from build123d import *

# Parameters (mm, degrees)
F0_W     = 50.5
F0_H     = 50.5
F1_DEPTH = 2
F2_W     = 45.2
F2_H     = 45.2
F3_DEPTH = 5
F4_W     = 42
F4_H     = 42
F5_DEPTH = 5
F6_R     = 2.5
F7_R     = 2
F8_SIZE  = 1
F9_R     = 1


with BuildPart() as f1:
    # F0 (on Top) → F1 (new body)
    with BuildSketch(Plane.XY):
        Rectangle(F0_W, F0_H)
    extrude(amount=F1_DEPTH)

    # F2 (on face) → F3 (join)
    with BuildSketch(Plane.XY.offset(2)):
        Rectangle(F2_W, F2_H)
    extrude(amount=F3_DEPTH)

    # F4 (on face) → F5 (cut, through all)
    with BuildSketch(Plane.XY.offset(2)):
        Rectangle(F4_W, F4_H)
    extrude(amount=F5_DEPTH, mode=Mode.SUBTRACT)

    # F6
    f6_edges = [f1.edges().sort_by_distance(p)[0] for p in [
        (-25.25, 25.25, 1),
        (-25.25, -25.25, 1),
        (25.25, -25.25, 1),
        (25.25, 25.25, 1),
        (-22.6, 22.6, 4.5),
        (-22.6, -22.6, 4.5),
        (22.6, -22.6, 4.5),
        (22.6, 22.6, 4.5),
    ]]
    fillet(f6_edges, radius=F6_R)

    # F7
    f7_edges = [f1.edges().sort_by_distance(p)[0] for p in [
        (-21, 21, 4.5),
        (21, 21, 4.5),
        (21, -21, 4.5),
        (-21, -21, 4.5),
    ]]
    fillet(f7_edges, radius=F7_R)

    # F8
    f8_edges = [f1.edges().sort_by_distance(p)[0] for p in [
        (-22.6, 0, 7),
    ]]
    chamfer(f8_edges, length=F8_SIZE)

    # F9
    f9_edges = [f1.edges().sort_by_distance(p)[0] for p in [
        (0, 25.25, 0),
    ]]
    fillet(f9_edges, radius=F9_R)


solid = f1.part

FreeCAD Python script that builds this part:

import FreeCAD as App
import Part
import Sketcher

V = App.Vector


def edges_at(feature, points):
    """Names of the edges that pass closest to the given points."""
    edges = feature.Shape.Edges
    near = lambda p: min(range(len(edges)), key=lambda i: edges[i].distToShape(Part.Vertex(*p))[0])
    return sorted({f"Edge{near(p) + 1}" for p in points})

doc = App.newDocument("Part")
params = doc.addObject("Spreadsheet::Sheet", "Params")
for row, (alias, value) in enumerate([
    ("sketch1_width", "50.5 mm"),
    ("pad1_length", "2 mm"),
    ("sketch2_width", "45.2 mm"),
    ("pad2_length", "5 mm"),
    ("sketch3_width", "42 mm"),
    ("fillet_radius", "2.5 mm"),
    ("fillet2_radius", "2 mm"),
    ("chamfer_size", "1 mm"),
    ("fillet3_radius", "1 mm"),
], start=1):
    params.set(f"A{row}", alias)
    params.set(f"B{row}", "=" + value)
    params.setAlias(f"B{row}", alias)

body = doc.addObject("PartDesign::Body", "Body")

# Sketch on XY plane
sketch1 = body.newObject("Sketcher::SketchObject", "Sketch")
sketch1.AttachmentSupport = (doc.getObject("XY_Plane"), [""])
sketch1.MapMode = "FlatFace"
sketch1.addGeometry([
    Part.LineSegment(V(-25.25, 25.25, 0), V(-25.25, -25.25, 0)),
    Part.LineSegment(V(-25.25, -25.25, 0), V(25.25, -25.25, 0)),
    Part.LineSegment(V(25.25, -25.25, 0), V(25.25, 25.25, 0)),
    Part.LineSegment(V(25.25, 25.25, 0), V(-25.25, 25.25, 0)),
], False)
sketch1.addConstraint([
    Sketcher.Constraint("Coincident", 0, 2, 1, 1),
    Sketcher.Constraint("Coincident", 1, 2, 2, 1),
    Sketcher.Constraint("Coincident", 2, 2, 3, 1),
    Sketcher.Constraint("Coincident", 3, 2, 0, 1),
    Sketcher.Constraint("Vertical", 0),
    Sketcher.Constraint("Horizontal", 1),
    Sketcher.Constraint("Vertical", 2),
    Sketcher.Constraint("Horizontal", 3),
    Sketcher.Constraint("Symmetric", 0, 2, 2, 2, -1, 1),
    Sketcher.Constraint("Equal", 3, 0),
    Sketcher.Constraint("DistanceX", 1, 1, 1, 2, 50.5),
])
sketch1.setExpression("Constraints[10]", "Params.sketch1_width")
pad1 = body.newObject("PartDesign::Pad", "Pad")
pad1.Profile = sketch1
pad1.setExpression("Length", "Params.pad1_length")

# Sketch on XY plane
sketch2 = body.newObject("Sketcher::SketchObject", "Sketch001")
sketch2.AttachmentSupport = (doc.getObject("XY_Plane"), [""])
sketch2.MapMode = "FlatFace"
sketch2.AttachmentOffset = App.Placement(V(0, 0, 2), App.Rotation())
sketch2.addGeometry([
    Part.LineSegment(V(-22.6, 22.6, 0), V(-22.6, -22.6, 0)),
    Part.LineSegment(V(-22.6, -22.6, 0), V(22.6, -22.6, 0)),
    Part.LineSegment(V(22.6, -22.6, 0), V(22.6, 22.6, 0)),
    Part.LineSegment(V(22.6, 22.6, 0), V(-22.6, 22.6, 0)),
], False)
sketch2.addConstraint([
    Sketcher.Constraint("Coincident", 0, 2, 1, 1),
    Sketcher.Constraint("Coincident", 1, 2, 2, 1),
    Sketcher.Constraint("Coincident", 2, 2, 3, 1),
    Sketcher.Constraint("Coincident", 3, 2, 0, 1),
    Sketcher.Constraint("Vertical", 0),
    Sketcher.Constraint("Horizontal", 1),
    Sketcher.Constraint("Vertical", 2),
    Sketcher.Constraint("Horizontal", 3),
    Sketcher.Constraint("Symmetric", 0, 2, 2, 2, -1, 1),
    Sketcher.Constraint("Equal", 3, 0),
    Sketcher.Constraint("DistanceX", 1, 1, 1, 2, 45.2),
])
sketch2.setExpression("Constraints[10]", "Params.sketch2_width")
pad2 = body.newObject("PartDesign::Pad", "Pad001")
pad2.Profile = sketch2
pad2.setExpression("Length", "Params.pad2_length")

# Sketch on XY plane
sketch3 = body.newObject("Sketcher::SketchObject", "Sketch002")
sketch3.AttachmentSupport = (doc.getObject("XY_Plane"), [""])
sketch3.MapMode = "FlatFace"
sketch3.AttachmentOffset = App.Placement(V(0, 0, 2), App.Rotation())
sketch3.addGeometry([
    Part.LineSegment(V(-21, 21, 0), V(-21, -21, 0)),
    Part.LineSegment(V(-21, -21, 0), V(21, -21, 0)),
    Part.LineSegment(V(21, -21, 0), V(21, 21, 0)),
    Part.LineSegment(V(21, 21, 0), V(-21, 21, 0)),
], False)
sketch3.addConstraint([
    Sketcher.Constraint("Coincident", 0, 2, 1, 1),
    Sketcher.Constraint("Coincident", 1, 2, 2, 1),
    Sketcher.Constraint("Coincident", 2, 2, 3, 1),
    Sketcher.Constraint("Coincident", 3, 2, 0, 1),
    Sketcher.Constraint("Vertical", 0),
    Sketcher.Constraint("Horizontal", 1),
    Sketcher.Constraint("Vertical", 2),
    Sketcher.Constraint("Horizontal", 3),
    Sketcher.Constraint("Symmetric", 0, 2, 2, 2, -1, 1),
    Sketcher.Constraint("Equal", 3, 0),
    Sketcher.Constraint("DistanceX", 1, 1, 1, 2, 42.0),
])
sketch3.setExpression("Constraints[10]", "Params.sketch3_width")
pocket1 = body.newObject("PartDesign::Pocket", "Pocket")
pocket1.Profile = sketch3
pocket1.Type = "ThroughAll"
pocket1.Reversed = True
doc.recompute()

fillet = body.newObject("PartDesign::Fillet", "Fillet")
fillet.Base = (pocket1, edges_at(pocket1, [
    (-25.25, 25.25, 1),
    (-25.25, -25.25, 1),
    (25.25, -25.25, 1),
    (25.25, 25.25, 1),
    (-22.6, 22.6, 4.5),
    (-22.6, -22.6, 4.5),
    (22.6, -22.6, 4.5),
    (22.6, 22.6, 4.5),
]))
fillet.setExpression("Radius", "Params.fillet_radius")
doc.recompute()

fillet2 = body.newObject("PartDesign::Fillet", "Fillet001")
fillet2.Base = (fillet, edges_at(fillet, [
    (-21, 21, 4.5),
    (21, 21, 4.5),
    (21, -21, 4.5),
    (-21, -21, 4.5),
]))
fillet2.setExpression("Radius", "Params.fillet2_radius")
doc.recompute()

chamfer = body.newObject("PartDesign::Chamfer", "Chamfer")
chamfer.Base = (fillet2, edges_at(fillet2, [(-22.6, 0, 7)]))
chamfer.setExpression("Size", "Params.chamfer_size")
doc.recompute()

fillet3 = body.newObject("PartDesign::Fillet", "Fillet002")
fillet3.Base = (chamfer, edges_at(chamfer, [(0, 25.25, 0)]))
fillet3.setExpression("Radius", "Params.fillet3_radius")

doc.recompute()
